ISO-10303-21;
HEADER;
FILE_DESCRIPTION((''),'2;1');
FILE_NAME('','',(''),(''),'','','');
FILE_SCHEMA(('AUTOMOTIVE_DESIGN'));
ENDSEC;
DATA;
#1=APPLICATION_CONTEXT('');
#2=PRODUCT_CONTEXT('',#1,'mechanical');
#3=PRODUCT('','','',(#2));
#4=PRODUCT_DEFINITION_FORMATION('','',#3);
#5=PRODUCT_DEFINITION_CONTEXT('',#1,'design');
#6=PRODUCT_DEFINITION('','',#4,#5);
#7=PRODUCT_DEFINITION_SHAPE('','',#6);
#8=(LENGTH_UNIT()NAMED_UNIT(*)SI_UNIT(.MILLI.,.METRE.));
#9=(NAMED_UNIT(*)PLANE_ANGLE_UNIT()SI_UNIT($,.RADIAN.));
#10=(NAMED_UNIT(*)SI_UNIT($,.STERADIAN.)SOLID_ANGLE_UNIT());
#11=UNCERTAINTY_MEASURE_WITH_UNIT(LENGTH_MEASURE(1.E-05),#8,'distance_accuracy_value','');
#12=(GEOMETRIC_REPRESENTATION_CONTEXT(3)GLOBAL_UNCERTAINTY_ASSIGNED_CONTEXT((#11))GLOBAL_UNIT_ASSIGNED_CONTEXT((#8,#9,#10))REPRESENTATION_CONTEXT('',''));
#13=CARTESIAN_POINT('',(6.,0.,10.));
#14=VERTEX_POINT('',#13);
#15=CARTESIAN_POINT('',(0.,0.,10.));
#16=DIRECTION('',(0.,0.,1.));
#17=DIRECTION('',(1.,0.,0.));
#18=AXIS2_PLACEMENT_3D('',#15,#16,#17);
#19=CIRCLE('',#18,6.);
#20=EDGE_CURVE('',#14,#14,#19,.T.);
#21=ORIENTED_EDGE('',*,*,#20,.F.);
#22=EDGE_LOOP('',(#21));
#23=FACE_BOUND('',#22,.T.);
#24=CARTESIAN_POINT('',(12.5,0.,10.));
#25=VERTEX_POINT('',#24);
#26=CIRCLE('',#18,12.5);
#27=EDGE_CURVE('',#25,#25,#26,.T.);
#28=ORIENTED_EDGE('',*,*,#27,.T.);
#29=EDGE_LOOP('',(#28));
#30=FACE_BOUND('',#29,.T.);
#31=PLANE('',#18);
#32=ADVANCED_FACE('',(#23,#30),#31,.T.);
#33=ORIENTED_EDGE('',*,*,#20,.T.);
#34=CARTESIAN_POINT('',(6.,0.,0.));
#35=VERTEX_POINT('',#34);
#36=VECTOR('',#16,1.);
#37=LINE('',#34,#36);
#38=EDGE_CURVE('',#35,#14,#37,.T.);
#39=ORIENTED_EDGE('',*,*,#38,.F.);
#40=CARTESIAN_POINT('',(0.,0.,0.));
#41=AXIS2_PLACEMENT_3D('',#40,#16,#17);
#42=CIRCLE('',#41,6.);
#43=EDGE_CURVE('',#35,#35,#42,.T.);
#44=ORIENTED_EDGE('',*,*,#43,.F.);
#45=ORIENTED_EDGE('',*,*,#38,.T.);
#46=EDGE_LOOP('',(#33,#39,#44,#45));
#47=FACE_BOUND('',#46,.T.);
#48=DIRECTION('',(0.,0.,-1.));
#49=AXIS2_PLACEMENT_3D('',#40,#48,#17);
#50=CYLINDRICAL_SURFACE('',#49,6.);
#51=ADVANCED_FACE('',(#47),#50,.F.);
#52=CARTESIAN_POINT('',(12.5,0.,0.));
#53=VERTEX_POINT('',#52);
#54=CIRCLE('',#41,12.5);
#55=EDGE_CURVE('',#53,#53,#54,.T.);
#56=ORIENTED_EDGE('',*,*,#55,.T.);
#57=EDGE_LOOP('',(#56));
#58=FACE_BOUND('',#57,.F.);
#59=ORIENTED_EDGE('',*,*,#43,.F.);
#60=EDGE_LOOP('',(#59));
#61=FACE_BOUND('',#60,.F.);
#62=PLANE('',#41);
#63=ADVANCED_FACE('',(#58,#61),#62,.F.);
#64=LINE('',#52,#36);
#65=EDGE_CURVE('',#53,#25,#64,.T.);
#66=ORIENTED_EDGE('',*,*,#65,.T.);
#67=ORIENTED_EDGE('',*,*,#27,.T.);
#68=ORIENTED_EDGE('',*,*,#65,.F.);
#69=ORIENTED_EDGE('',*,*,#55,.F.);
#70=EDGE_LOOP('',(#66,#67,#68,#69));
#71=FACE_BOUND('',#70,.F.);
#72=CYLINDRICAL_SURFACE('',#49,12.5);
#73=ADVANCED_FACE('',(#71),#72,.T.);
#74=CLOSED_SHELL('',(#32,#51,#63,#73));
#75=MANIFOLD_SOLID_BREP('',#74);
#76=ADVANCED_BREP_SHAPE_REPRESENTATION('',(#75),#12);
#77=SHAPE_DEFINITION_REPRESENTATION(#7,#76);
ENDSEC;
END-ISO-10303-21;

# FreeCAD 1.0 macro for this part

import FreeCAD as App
import Part
import Sketcher

V = App.Vector

doc = App.newDocument("Part")
params = doc.addObject("Spreadsheet::Sheet", "Params")
for row, (alias, value) in enumerate([
    ("sketch1_diameter", "25 mm"),
    ("sketch1_diameter2", "12 mm"),
    ("pad1_length", "10 mm"),
], start=1):
    params.set(f"A{row}", alias)
    params.set(f"B{row}", "=" + value)
    params.setAlias(f"B{row}", alias)

body = doc.addObject("PartDesign::Body", "Body")

sketch1 = body.newObject("Sketcher::SketchObject", "Sketch")
sketch1.AttachmentSupport = (doc.getObject("XY_Plane"), [""])
sketch1.MapMode = "FlatFace"
sketch1.addGeometry([
    Part.Circle(V(0, 0, 0), V(0, 0, 1), 12),
    Part.Circle(V(0, 0, 0), V(0, 0, 1), 6),
], False)
sketch1.addConstraint([
    Sketcher.Constraint("Coincident", 0, 3, -1, 1),
    Sketcher.Constraint("Coincident", 1, 3, -1, 1),
    Sketcher.Constraint("Diameter", 0, 25.0),
    Sketcher.Constraint("Diameter", 1, 12.0),
])
sketch1.setExpression("Constraints[2]", "Params.sketch1_diameter")
sketch1.setExpression("Constraints[3]", "Params.sketch1_diameter2")
pad1 = body.newObject("PartDesign::Pad", "Pad")
pad1.Profile = sketch1
pad1.setExpression("Length", "Params.pad1_length")

doc.recompute()
